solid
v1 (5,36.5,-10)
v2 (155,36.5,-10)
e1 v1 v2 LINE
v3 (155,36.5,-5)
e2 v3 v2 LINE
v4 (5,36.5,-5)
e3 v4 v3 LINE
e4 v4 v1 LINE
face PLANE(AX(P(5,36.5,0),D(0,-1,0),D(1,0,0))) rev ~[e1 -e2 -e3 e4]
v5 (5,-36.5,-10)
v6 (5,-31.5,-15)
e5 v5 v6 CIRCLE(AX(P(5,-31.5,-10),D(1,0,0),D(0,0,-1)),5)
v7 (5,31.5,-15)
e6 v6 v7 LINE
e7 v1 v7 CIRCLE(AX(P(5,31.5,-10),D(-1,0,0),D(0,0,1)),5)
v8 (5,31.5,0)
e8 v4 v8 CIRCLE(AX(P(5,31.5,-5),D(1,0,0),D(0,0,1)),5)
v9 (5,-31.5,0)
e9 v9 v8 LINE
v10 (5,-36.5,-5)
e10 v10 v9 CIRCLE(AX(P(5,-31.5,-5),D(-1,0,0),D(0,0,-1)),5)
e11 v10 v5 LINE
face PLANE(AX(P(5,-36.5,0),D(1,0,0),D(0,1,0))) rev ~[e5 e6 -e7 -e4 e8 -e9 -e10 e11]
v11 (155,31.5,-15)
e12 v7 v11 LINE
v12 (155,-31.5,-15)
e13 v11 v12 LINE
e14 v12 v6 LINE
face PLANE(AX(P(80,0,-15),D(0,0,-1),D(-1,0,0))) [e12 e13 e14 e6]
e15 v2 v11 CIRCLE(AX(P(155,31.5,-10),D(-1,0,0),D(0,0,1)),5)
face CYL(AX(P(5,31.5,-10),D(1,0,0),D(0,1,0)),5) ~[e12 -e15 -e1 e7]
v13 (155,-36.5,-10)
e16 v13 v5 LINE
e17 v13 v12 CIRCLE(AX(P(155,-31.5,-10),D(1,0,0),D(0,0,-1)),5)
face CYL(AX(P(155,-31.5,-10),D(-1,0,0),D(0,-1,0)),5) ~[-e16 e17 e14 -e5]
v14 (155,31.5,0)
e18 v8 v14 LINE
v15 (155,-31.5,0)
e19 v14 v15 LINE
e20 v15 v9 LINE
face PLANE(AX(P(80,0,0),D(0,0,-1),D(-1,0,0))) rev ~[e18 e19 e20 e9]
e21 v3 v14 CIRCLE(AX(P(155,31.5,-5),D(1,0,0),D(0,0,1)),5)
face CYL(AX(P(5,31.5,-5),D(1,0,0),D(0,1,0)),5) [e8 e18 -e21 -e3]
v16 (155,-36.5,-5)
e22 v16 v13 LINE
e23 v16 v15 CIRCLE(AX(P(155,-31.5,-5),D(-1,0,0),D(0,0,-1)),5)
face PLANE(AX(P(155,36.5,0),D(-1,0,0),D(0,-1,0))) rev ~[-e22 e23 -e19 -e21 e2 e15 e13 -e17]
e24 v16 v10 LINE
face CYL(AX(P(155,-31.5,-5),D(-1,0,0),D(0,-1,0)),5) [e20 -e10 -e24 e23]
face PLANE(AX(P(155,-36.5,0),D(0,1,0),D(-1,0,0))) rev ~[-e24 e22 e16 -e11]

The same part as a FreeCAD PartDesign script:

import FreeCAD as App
import Part
import Sketcher
from FreeCAD import Vector
Q = App.Units.Quantity


def edges_at(feature, points):
    """Names of the edges that pass closest to the given points."""
    edges = feature.Shape.Edges
    near = lambda p: min(range(len(edges)), key=lambda i: edges[i].distToShape(Part.Vertex(*p))[0])
    return sorted({f"Edge{near(p) + 1}" for p in points})


def add_polygon(sketch, points):
    """Adds a closed chain of lines whose ends are joined by coincident constraints."""
    first, n = sketch.GeometryCount, len(points)
    for a, b in zip(points, points[1:] + points[:1]):
        sketch.addGeometry(Part.LineSegment(App.Vector(*a, 0), App.Vector(*b, 0)), False)
    for i in range(n):
        sketch.addConstraint(Sketcher.Constraint("Coincident", first + i, 2, first + (i + 1) % n, 1))

doc = App.newDocument("Part")
body = doc.addObject("PartDesign::Body", "Body")

# Sketch on XY plane
sketch1 = doc.addObject("Sketcher::SketchObject", "Sketch")
body.addObject(sketch1)
sketch1.AttachmentSupport = (doc.XY_Plane, [""])
sketch1.MapMode = "FlatFace"
add_polygon(sketch1, [(155, -36), (5, -36), (5, 36), (155, 36)])  # lines 0-3
sketch1.addConstraint([
    Sketcher.Constraint("Horizontal", 0),
    Sketcher.Constraint("Vertical", 1),
    Sketcher.Constraint("Horizontal", 2),
    Sketcher.Constraint("Vertical", 3),
    Sketcher.Constraint("DistanceX", 0, 2, 0, 1, Q("150 mm")),
    Sketcher.Constraint("DistanceY", 1, 1, 1, 2, Q("73 mm")),
    Sketcher.Constraint("DistanceX", -1, 1, 0, 2, Q("5 mm")),
    Sketcher.Constraint("DistanceY", 0, 2, -1, 1, Q("36.5 mm")),
])
pad1 = doc.addObject("PartDesign::Pad", "Pad")
body.addObject(pad1)
pad1.Profile = sketch1
pad1.Length = 15
pad1.Reversed = True
doc.recompute()

fillet = doc.addObject("PartDesign::Fillet", "Fillet")
body.addObject(fillet)
fillet.Base = (pad1, edges_at(pad1, [
    (80, 36.5, -15),
    (80, -36.5, -15),
    (80, 36.5, 0),
    (80, -36.5, 0),
]))
fillet.Radius = 5

doc.recompute()
